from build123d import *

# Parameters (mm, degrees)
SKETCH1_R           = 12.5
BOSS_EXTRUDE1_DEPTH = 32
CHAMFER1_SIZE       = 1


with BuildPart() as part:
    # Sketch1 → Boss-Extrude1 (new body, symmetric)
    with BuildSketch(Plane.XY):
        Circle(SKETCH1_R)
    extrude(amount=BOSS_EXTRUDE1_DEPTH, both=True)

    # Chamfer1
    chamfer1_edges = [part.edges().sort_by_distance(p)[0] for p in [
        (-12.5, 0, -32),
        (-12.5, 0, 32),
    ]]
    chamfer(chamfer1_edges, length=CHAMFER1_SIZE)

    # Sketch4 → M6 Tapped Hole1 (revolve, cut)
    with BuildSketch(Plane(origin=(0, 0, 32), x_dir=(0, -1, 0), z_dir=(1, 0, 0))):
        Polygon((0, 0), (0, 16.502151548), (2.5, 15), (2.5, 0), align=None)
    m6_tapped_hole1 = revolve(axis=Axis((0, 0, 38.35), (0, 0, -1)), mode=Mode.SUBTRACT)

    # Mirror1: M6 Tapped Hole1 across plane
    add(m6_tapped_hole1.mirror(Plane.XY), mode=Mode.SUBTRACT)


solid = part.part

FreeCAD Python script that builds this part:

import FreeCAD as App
import Part
import Sketcher
from FreeCAD import Vector
Q = App.Units.Quantity


def edges_at(feature, points):
    """Names of the edges that pass closest to the given points."""
    edges = feature.Shape.Edges
    near = lambda p: min(range(len(edges)), key=lambda i: edges[i].distToShape(Part.Vertex(*p))[0])
    return sorted({f"Edge{near(p) + 1}" for p in points})


def add_polygon(sketch, points):
    """Adds a closed chain of lines whose ends are joined by coincident constraints."""
    first, n = sketch.GeometryCount, len(points)
    for a, b in zip(points, points[1:] + points[:1]):
        sketch.addGeometry(Part.LineSegment(App.Vector(*a, 0), App.Vector(*b, 0)), False)
    for i in range(n):
        sketch.addConstraint(Sketcher.Constraint("Coincident", first + i, 2, first + (i + 1) % n, 1))

doc = App.newDocument("Part")
params = doc.addObject("Spreadsheet::Sheet", "Params")
for row, (alias, value) in enumerate([
    ("sketch1_diameter", "25 mm"),
    ("pad1_length", "64 mm"),
    ("chamfer_size", "1 mm"),
    ("sketch2_height", "15 mm"),
    ("sketch2_width", "2.5 mm"),
    ("groove_angle", "360 deg"),
], start=1):
    params.set(f"A{row}", alias)
    params.set(f"B{row}", "=" + value)
    params.setAlias(f"B{row}", alias)

body = doc.addObject("PartDesign::Body", "Body")

sketch1 = doc.addObject("Sketcher::SketchObject", "Sketch")
body.addObject(sketch1)
sketch1.AttachmentSupport = (doc.XY_Plane, [""])
sketch1.MapMode = "FlatFace"
sketch1.addGeometry(Part.Circle(Vector(0, 0, 0), Vector(0, 0, 1), 12.5), False)
sketch1.addConstraint([
    Sketcher.Constraint("Coincident", 0, 3, -1, 1),
    Sketcher.Constraint("Diameter", 0, Q("25 mm")),
])
sketch1.setExpression("Constraints[1]", "Params.sketch1_diameter")
pad1 = doc.addObject("PartDesign::Pad", "Pad")
body.addObject(pad1)
pad1.Profile = sketch1
pad1.setExpression("Length", "Params.pad1_length")
pad1.Midplane = True
doc.recompute()

chamfer = doc.addObject("PartDesign::Chamfer", "Chamfer")
body.addObject(chamfer)
chamfer.Base = (pad1, edges_at(pad1, [(-12.5, 0, -32), (-12.5, 0, 32)]))
chamfer.setExpression("Size", "Params.chamfer_size")

sketch2 = doc.addObject("Sketcher::SketchObject", "Sketch001")
body.addObject(sketch2)
sketch2.AttachmentSupport = (doc.YZ_Plane, [""])
sketch2.MapMode = "FlatFace"
add_polygon(sketch2, [(0, 15.497848), (0, 32), (-2.5, 32), (-2.5, 17)])
sketch2.addConstraint([
    Sketcher.Constraint("Vertical", 0),
    Sketcher.Constraint("Horizontal", 1),
    Sketcher.Constraint("Vertical", 2),
    Sketcher.Constraint("PointOnObject", 0, 2, -2),
    Sketcher.Constraint("DistanceY", 2, 2, 2, 1, Q("15 mm")),
    Sketcher.Constraint("Angle", 3, Q("-31 deg")),
    Sketcher.Constraint("DistanceX", 1, 2, 1, 1, Q("2.5 mm")),
    Sketcher.Constraint("DistanceY", -1, 1, 0, 2, Q("32 mm")),
])
sketch2.setExpression("Constraints[8]", "Params.sketch2_height")
sketch2.setExpression("Constraints[10]", "Params.sketch2_width")
groove = doc.addObject("PartDesign::Groove", "Groove")
body.addObject(groove)
groove.Profile = sketch2
groove.ReferenceAxis = (sketch2, ["V_Axis"])
groove.setExpression("Angle", "Params.groove_angle")
doc.recompute()

mirrored = doc.addObject("PartDesign::Mirrored", "Mirrored")
body.addObject(mirrored)
mirrored.Originals = [groove]
mirrored.MirrorPlane = (doc.XY_Plane, [""])
body.Tip = mirrored

doc.recompute()
